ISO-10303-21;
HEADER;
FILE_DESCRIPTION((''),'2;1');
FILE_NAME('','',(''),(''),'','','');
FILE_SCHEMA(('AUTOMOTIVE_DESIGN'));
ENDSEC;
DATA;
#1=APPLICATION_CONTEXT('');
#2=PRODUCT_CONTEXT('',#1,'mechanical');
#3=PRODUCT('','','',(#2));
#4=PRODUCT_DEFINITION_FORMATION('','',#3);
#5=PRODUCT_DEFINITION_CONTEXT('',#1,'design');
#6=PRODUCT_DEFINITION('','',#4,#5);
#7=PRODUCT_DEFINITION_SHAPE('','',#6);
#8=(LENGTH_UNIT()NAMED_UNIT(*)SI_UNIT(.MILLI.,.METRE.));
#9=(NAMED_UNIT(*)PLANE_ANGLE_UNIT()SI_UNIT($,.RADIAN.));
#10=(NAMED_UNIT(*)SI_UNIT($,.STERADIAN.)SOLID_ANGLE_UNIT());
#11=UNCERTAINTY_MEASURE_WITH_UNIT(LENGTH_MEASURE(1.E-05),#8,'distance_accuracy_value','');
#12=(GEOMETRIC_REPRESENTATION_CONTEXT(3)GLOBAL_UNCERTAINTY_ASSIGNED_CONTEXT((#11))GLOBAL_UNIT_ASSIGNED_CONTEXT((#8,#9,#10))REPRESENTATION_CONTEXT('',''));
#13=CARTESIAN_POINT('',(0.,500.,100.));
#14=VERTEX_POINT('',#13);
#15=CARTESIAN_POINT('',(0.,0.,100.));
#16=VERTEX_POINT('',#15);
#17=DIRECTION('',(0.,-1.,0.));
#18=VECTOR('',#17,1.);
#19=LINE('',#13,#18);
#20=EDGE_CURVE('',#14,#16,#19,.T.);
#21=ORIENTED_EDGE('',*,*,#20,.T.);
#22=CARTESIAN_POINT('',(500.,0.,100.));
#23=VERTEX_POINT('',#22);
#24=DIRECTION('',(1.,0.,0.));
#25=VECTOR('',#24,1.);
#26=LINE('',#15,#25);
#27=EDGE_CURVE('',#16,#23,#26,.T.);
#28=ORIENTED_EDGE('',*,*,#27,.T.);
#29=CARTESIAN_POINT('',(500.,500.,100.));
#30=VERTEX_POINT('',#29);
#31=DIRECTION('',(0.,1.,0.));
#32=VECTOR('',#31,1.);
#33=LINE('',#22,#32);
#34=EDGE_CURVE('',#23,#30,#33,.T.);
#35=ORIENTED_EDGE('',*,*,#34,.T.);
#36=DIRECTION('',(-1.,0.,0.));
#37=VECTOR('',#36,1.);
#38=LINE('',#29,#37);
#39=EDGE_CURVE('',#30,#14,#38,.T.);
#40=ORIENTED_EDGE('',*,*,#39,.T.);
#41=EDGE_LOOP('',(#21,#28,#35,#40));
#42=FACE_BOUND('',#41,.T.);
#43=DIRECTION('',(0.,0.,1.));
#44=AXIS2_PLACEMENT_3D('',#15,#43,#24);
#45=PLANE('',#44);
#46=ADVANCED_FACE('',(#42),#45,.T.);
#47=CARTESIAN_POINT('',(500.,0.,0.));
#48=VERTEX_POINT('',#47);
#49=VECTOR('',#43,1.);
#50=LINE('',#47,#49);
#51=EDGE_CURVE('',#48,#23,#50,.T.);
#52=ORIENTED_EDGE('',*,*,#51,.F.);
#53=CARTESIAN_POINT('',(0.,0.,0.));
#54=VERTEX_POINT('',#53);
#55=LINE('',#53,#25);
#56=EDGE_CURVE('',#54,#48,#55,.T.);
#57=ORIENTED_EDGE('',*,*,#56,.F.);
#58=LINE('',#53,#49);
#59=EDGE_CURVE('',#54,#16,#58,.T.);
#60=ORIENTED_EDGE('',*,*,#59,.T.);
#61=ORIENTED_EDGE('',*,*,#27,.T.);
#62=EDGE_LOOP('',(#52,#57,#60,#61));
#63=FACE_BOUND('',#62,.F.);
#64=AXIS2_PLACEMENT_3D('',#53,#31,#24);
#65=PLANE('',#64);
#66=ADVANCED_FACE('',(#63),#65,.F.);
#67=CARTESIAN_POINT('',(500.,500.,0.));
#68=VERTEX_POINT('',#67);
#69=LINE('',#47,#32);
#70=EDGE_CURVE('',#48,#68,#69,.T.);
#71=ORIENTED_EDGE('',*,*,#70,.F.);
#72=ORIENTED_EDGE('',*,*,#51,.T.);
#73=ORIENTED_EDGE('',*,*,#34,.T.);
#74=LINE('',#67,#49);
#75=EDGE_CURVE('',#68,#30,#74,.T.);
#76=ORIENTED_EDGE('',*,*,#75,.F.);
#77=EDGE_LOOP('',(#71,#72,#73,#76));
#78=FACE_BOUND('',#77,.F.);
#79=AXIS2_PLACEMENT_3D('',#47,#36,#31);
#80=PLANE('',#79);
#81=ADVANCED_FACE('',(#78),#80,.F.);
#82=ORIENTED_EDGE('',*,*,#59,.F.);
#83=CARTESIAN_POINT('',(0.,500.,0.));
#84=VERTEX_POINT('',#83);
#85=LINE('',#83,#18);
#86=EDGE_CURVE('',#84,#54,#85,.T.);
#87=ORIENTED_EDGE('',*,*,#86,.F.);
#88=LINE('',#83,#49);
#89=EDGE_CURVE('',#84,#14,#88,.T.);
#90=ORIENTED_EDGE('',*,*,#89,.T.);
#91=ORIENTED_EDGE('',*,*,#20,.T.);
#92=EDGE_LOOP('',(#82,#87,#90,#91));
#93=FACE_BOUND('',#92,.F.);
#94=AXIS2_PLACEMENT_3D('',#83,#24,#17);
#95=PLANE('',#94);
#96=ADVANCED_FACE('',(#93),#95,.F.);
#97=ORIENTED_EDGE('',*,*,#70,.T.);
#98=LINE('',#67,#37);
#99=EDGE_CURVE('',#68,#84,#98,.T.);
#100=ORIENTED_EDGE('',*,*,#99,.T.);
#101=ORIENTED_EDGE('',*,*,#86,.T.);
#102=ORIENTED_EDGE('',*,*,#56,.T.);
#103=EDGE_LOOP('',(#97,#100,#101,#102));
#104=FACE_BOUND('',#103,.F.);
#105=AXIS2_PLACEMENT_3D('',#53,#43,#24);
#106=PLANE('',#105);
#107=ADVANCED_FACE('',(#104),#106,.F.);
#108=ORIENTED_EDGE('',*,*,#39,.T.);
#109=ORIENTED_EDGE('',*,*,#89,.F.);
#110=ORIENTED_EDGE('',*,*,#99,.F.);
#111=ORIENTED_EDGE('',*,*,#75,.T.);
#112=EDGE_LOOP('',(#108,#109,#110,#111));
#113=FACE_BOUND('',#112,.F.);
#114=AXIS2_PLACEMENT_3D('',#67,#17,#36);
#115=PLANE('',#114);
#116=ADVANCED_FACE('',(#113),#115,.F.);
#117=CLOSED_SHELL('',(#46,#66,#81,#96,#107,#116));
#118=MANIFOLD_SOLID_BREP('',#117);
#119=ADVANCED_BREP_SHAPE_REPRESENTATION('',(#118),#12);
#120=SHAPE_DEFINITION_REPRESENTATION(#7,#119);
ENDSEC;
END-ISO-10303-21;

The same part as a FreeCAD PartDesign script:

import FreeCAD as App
import Part
import Sketcher

V = App.Vector


def add_polygon(sketch, points):
    """Adds a closed chain of lines whose ends are joined by coincident constraints."""
    first, n = sketch.GeometryCount, len(points)
    for a, b in zip(points, points[1:] + points[:1]):
        sketch.addGeometry(Part.LineSegment(App.Vector(*a, 0), App.Vector(*b, 0)), False)
    for i in range(n):
        sketch.addConstraint(Sketcher.Constraint("Coincident", first + i, 2, first + (i + 1) % n, 1))

doc = App.newDocument("Part")
body = doc.addObject("PartDesign::Body", "Body")

sketch1 = body.newObject("Sketcher::SketchObject", "Sketch")
sketch1.AttachmentSupport = (doc.getObject("XY_Plane"), [""])
sketch1.MapMode = "FlatFace"
add_polygon(sketch1, [(0, 500), (0, 0), (500, 0), (500, 500)])
sketch1.addConstraint(Sketcher.Constraint("Vertical", 0))
sketch1.addConstraint(Sketcher.Constraint("Horizontal", 1))
sketch1.addConstraint(Sketcher.Constraint("Vertical", 2))
sketch1.addConstraint(Sketcher.Constraint("Horizontal", 3))
sketch1.addConstraint(Sketcher.Constraint("Coincident", 0, 2, -1, 1))
sketch1.addConstraint(Sketcher.Constraint("Equal", 3, 0))
sketch1.addConstraint(Sketcher.Constraint("DistanceX", 1, 1, 1, 2, 500.0))
pad1 = body.newObject("PartDesign::Pad", "Pad")
pad1.Profile = sketch1
pad1.Length = 100

doc.recompute()
